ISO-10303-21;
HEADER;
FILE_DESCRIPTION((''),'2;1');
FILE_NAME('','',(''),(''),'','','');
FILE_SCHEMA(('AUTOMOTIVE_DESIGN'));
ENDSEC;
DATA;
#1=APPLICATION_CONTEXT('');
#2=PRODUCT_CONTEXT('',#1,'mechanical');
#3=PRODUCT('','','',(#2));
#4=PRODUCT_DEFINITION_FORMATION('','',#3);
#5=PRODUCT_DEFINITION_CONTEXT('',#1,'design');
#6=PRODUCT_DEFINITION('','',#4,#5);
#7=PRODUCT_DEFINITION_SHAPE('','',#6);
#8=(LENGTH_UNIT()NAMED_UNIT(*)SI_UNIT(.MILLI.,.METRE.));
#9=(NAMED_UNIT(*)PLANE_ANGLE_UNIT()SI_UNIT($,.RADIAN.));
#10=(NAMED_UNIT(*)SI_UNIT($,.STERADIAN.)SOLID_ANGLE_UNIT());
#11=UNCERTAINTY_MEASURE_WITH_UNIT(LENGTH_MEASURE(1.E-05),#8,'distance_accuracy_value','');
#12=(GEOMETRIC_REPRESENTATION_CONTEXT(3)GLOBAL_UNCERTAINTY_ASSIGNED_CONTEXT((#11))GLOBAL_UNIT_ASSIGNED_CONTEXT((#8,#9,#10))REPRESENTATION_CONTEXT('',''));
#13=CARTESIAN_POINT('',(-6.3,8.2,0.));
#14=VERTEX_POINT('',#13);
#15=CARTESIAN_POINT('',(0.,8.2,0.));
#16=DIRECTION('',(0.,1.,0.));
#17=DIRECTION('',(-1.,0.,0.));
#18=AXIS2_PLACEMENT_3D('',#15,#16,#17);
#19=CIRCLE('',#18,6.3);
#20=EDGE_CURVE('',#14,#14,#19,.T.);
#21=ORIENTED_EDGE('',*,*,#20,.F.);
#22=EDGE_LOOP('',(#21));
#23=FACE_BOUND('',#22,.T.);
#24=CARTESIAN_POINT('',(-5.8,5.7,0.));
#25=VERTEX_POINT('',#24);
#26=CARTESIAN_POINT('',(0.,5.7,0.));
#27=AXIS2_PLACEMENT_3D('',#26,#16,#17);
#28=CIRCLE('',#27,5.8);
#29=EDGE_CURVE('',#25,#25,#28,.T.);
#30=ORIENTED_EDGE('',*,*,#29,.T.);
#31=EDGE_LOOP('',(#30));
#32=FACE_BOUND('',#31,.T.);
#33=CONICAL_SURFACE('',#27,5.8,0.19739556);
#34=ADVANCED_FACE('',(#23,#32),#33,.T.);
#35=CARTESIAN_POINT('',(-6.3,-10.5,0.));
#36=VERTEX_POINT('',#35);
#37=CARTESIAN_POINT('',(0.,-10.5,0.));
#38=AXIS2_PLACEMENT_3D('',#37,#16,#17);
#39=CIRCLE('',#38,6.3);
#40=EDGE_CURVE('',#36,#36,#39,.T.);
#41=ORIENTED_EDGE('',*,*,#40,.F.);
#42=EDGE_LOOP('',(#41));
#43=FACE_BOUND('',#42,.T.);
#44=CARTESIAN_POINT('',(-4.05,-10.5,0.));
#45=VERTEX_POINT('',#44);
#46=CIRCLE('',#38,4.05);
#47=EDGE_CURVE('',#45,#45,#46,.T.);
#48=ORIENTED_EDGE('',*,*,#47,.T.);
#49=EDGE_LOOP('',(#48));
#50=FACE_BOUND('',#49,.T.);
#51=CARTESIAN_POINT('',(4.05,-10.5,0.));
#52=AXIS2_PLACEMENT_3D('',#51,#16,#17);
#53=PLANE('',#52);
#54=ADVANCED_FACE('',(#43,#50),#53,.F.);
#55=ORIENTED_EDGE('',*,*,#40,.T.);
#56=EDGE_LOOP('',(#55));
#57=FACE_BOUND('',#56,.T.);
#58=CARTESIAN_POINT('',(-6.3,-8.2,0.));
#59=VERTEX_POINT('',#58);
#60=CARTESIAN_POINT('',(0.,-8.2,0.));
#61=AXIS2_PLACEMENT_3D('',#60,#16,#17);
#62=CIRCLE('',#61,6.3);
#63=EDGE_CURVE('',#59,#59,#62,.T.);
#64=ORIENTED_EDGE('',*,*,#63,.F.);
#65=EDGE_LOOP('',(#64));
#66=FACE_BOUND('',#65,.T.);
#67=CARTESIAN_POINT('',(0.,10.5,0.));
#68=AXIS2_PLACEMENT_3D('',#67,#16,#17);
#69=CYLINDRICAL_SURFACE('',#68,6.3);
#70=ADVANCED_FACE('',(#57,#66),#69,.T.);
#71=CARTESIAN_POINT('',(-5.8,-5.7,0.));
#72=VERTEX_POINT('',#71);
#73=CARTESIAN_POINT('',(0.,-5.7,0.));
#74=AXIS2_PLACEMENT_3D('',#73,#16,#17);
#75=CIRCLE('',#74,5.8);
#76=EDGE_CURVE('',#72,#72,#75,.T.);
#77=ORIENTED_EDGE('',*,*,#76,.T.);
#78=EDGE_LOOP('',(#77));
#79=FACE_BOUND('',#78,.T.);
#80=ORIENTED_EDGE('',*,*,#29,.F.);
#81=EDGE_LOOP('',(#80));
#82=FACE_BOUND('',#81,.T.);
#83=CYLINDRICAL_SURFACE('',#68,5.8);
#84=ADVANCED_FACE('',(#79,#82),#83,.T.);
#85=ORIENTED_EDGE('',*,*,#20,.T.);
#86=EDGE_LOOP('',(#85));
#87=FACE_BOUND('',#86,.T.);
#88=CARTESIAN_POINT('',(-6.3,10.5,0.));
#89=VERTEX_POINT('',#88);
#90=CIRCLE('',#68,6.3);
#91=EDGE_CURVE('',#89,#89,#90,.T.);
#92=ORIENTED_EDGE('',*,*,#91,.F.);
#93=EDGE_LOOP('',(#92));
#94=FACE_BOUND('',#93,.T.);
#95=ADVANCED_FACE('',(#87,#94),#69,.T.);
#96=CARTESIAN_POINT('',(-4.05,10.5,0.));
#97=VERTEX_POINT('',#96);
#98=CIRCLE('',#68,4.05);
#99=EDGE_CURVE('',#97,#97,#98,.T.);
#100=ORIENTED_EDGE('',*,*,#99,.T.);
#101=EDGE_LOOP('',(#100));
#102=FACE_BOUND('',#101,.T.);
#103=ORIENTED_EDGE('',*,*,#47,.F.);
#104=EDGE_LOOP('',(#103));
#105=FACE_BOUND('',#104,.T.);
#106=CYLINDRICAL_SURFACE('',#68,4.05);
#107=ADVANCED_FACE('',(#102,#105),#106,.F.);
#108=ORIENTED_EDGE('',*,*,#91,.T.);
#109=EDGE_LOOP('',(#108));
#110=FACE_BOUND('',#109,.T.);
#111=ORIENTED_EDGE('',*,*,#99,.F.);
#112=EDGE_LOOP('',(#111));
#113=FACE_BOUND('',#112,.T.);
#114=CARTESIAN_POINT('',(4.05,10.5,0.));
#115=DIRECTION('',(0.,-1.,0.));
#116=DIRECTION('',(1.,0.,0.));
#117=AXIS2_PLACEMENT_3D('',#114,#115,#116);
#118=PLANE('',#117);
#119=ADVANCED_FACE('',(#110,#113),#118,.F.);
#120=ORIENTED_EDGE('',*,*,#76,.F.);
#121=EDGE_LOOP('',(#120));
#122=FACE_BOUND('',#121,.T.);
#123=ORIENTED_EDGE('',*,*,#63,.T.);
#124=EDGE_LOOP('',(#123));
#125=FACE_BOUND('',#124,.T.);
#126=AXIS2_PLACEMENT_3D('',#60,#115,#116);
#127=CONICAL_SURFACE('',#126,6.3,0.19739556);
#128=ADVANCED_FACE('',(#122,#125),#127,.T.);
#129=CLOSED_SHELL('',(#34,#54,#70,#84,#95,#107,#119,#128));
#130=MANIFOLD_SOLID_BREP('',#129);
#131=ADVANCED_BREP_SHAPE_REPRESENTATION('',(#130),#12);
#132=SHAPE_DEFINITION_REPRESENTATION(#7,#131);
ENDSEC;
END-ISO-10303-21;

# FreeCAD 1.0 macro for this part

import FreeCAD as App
import Part
import Sketcher


def add_polygon(sketch, points):
    """Adds a closed chain of lines whose ends are joined by coincident constraints."""
    first, n = sketch.GeometryCount, len(points)
    for a, b in zip(points, points[1:] + points[:1]):
        sketch.addGeometry(Part.LineSegment(App.Vector(*a, 0), App.Vector(*b, 0)), False)
    for i in range(n):
        sketch.addConstraint(Sketcher.Constraint("Coincident", first + i, 2, first + (i + 1) % n, 1))

doc = App.newDocument("Part")
body = doc.addObject("PartDesign::Body", "Body")

# Sketch on XY plane
sketch1 = body.newObject("Sketcher::SketchObject", "Sketch")
sketch1.AttachmentSupport = (doc.getObject("XY_Plane"), [""])
sketch1.MapMode = "FlatFace"
add_polygon(sketch1, [(6.3, 10.5), (4.05, 10.5), (4.05, -10.5), (6.3, -10.5), (6.3, -8.2), (5.8, -5.7), (5.8, 5.7), (6.3, 8.2)])  # lines 0-7
sketch1.addConstraint([
    Sketcher.Constraint("Horizontal", 0),
    Sketcher.Constraint("Vertical", 1),
    Sketcher.Constraint("Horizontal", 2),
    Sketcher.Constraint("Vertical", 3),
    Sketcher.Constraint("Vertical", 5),
    Sketcher.Constraint("Vertical", 7),
    Sketcher.Constraint("Symmetric", 3, 2, 6, 2, -1),
    Sketcher.Constraint("Equal", 3, 7),
    Sketcher.Constraint("Equal", 4, 6),
    Sketcher.Constraint("DistanceY", 1, 2, 1, 1, 21.0),
    Sketcher.Constraint("DistanceY", 3, 1, 3, 2, 2.3),
    Sketcher.Constraint("DistanceY", 5, 1, 5, 2, 11.4),
    Sketcher.Constraint("DistanceX", 0, 2, 0, 1, 2.25),
    Sketcher.Constraint("DistanceX", -1, 1, 2, 2, 6.3),
    Sketcher.Constraint("DistanceX", -1, 1, 4, 2, 5.8),
])
revolution = body.newObject("PartDesign::Revolution", "Revolution")
revolution.Profile = sketch1
revolution.ReferenceAxis = (sketch1, ["V_Axis"])
revolution.Angle = 360

doc.recompute()
